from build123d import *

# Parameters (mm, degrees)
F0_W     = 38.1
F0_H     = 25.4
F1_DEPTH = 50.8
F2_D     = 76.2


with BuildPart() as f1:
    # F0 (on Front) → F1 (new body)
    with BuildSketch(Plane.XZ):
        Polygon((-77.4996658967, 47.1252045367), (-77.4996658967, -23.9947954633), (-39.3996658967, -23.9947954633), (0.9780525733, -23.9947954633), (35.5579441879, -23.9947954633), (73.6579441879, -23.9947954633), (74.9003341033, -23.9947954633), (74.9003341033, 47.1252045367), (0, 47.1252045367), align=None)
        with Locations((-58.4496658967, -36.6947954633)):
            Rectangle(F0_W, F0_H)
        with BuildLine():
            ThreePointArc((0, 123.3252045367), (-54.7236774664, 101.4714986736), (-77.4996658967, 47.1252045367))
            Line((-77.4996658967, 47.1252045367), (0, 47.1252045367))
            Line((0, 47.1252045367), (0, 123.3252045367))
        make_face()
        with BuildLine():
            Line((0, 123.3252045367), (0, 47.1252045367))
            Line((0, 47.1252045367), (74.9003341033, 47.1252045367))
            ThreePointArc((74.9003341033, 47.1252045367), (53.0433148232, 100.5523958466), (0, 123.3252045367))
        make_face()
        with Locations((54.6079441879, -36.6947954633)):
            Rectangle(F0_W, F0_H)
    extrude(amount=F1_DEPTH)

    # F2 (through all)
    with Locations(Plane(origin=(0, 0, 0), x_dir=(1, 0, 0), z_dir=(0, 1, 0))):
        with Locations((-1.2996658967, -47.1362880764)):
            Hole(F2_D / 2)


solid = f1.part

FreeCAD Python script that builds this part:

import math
import FreeCAD as App
import Part
import Sketcher

V = App.Vector
Q = App.Units.Quantity

doc = App.newDocument("Part")
params = doc.addObject("Spreadsheet::Sheet", "Params")
for row, (alias, value) in enumerate([
    ("sketch1_radius", "3 in"),
    ("sketch1_height", "1 in"),
    ("sketch1_width", "1.5 in"),
    ("sketch1_height2", "3.8 in"),
    ("pad1_length", "2 in"),
    ("sketch2_diameter", "3 in"),
    ("hole_diameter", "3 in"),
], start=1):
    params.set(f"A{row}", alias)
    params.set(f"B{row}", "=" + value)
    params.setAlias(f"B{row}", alias)

body = doc.addObject("PartDesign::Body", "Body")

# Sketch on XZ plane
sketch1 = doc.addObject("Sketcher::SketchObject", "Sketch")
body.addObject(sketch1)
sketch1.AttachmentSupport = (doc.XZ_Plane, [""])
sketch1.MapMode = "FlatFace"
sketch1.addGeometry([
    Part.LineSegment(V(-77.5, 47.1, 0), V(-77.5, -49.4, 0)),  # 0
    Part.LineSegment(V(-77.5, -49.4, 0), V(-39.4, -49.4, 0)),  # 1
    Part.LineSegment(V(-39.4, -49.4, 0), V(-39.4, -24, 0)),  # 2
    Part.LineSegment(V(-39.4, -24, 0), V(35.6, -24, 0)),  # 3
    Part.LineSegment(V(35.6, -24, 0), V(35.6, -49.4, 0)),  # 4
    Part.LineSegment(V(35.6, -49.4, 0), V(73.7, -49.4, 0)),  # 5
    Part.LineSegment(V(73.7, -49.4, 0), V(73.7, -24, 0)),  # 6
    Part.LineSegment(V(73.7, -24, 0), V(74.9, -24, 0)),  # 7
    Part.LineSegment(V(74.9, -24, 0), V(74.9, 47.1, 0)),  # 8
    Part.ArcOfCircle(Part.Circle(V(-1.3, 47.1, 0), V(0, 0, 1), 76.2), math.radians(0), math.radians(180)),  # 9
], False)
sketch1.addConstraint([
    Sketcher.Constraint("Coincident", 0, 2, 1, 1),
    Sketcher.Constraint("Coincident", 1, 2, 2, 1),
    Sketcher.Constraint("Coincident", 2, 2, 3, 1),
    Sketcher.Constraint("Coincident", 3, 2, 4, 1),
    Sketcher.Constraint("Coincident", 4, 2, 5, 1),
    Sketcher.Constraint("Coincident", 5, 2, 6, 1),
    Sketcher.Constraint("Coincident", 6, 2, 7, 1),
    Sketcher.Constraint("Coincident", 7, 2, 8, 1),
    Sketcher.Constraint("Coincident", 8, 2, 9, 1),
    Sketcher.Constraint("Coincident", 9, 2, 0, 1),
    Sketcher.Constraint("Vertical", 0),
    Sketcher.Constraint("Horizontal", 1),
    Sketcher.Constraint("Vertical", 2),
    Sketcher.Constraint("Horizontal", 3),
    Sketcher.Constraint("Vertical", 4),
    Sketcher.Constraint("Horizontal", 5),
    Sketcher.Constraint("Vertical", 6),
    Sketcher.Constraint("Horizontal", 7),
    Sketcher.Constraint("Vertical", 8),
    Sketcher.Constraint("Horizontal", 1, 2, 4, 2),
    Sketcher.Constraint("Horizontal", 3, 2, 6, 2),
    Sketcher.Constraint("Horizontal", 8, 2, 9, 2),
    Sketcher.Constraint("Equal", 1, 5),
    Sketcher.Constraint("Radius", 9, Q("3 in")),
    Sketcher.Constraint("DistanceY", 2, 1, 2, 2, Q("1 in")),
    Sketcher.Constraint("DistanceX", 1, 1, 1, 2, Q("1.5 in")),
    Sketcher.Constraint("DistanceY", 0, 2, 0, 1, Q("3.8 in")),
    Sketcher.Constraint("DistanceX", 3, 1, 3, 2, Q("74.95761 mm")),
    Sketcher.Constraint("DistanceY", -1, 1, 9, 3, Q("47.136288 mm")),
    Sketcher.Constraint("DistanceX", 9, 3, -1, 1, Q("1.299666 mm")),
    Sketcher.Constraint("DistanceY", 0, 2, -1, 1, Q("49.394795 mm")),
])
sketch1.setExpression("Constraints[23]", "Params.sketch1_radius")
sketch1.setExpression("Constraints[24]", "Params.sketch1_height")
sketch1.setExpression("Constraints[25]", "Params.sketch1_width")
sketch1.setExpression("Constraints[26]", "Params.sketch1_height2")
pad1 = doc.addObject("PartDesign::Pad", "Pad")
body.addObject(pad1)
pad1.Profile = sketch1
pad1.setExpression("Length", "Params.pad1_length")

# Sketch on XZ plane
sketch2 = doc.addObject("Sketcher::SketchObject", "Sketch001")
body.addObject(sketch2)
sketch2.AttachmentSupport = (doc.XZ_Plane, [""])
sketch2.MapMode = "FlatFace"
sketch2.addGeometry(Part.Circle(V(-1, 47, 0), V(0, 0, 1), 38), False)
sketch2.addConstraint([
    Sketcher.Constraint("Diameter", 0, Q("3 in")),
    Sketcher.Constraint("DistanceY", -1, 1, 0, 3, Q("47.136288 mm")),
    Sketcher.Constraint("DistanceX", 0, 3, -1, 1, Q("1.299666 mm")),
])
sketch2.setExpression("Constraints[0]", "Params.sketch2_diameter")
doc.recompute()
hole = doc.addObject("PartDesign::Hole", "Hole")
body.addObject(hole)
hole.Profile = sketch2
hole.ThreadType = "None"
hole.setExpression("Diameter", "Params.hole_diameter")
hole.DepthType = "ThroughAll"
hole.Reversed = True

doc.recompute()
